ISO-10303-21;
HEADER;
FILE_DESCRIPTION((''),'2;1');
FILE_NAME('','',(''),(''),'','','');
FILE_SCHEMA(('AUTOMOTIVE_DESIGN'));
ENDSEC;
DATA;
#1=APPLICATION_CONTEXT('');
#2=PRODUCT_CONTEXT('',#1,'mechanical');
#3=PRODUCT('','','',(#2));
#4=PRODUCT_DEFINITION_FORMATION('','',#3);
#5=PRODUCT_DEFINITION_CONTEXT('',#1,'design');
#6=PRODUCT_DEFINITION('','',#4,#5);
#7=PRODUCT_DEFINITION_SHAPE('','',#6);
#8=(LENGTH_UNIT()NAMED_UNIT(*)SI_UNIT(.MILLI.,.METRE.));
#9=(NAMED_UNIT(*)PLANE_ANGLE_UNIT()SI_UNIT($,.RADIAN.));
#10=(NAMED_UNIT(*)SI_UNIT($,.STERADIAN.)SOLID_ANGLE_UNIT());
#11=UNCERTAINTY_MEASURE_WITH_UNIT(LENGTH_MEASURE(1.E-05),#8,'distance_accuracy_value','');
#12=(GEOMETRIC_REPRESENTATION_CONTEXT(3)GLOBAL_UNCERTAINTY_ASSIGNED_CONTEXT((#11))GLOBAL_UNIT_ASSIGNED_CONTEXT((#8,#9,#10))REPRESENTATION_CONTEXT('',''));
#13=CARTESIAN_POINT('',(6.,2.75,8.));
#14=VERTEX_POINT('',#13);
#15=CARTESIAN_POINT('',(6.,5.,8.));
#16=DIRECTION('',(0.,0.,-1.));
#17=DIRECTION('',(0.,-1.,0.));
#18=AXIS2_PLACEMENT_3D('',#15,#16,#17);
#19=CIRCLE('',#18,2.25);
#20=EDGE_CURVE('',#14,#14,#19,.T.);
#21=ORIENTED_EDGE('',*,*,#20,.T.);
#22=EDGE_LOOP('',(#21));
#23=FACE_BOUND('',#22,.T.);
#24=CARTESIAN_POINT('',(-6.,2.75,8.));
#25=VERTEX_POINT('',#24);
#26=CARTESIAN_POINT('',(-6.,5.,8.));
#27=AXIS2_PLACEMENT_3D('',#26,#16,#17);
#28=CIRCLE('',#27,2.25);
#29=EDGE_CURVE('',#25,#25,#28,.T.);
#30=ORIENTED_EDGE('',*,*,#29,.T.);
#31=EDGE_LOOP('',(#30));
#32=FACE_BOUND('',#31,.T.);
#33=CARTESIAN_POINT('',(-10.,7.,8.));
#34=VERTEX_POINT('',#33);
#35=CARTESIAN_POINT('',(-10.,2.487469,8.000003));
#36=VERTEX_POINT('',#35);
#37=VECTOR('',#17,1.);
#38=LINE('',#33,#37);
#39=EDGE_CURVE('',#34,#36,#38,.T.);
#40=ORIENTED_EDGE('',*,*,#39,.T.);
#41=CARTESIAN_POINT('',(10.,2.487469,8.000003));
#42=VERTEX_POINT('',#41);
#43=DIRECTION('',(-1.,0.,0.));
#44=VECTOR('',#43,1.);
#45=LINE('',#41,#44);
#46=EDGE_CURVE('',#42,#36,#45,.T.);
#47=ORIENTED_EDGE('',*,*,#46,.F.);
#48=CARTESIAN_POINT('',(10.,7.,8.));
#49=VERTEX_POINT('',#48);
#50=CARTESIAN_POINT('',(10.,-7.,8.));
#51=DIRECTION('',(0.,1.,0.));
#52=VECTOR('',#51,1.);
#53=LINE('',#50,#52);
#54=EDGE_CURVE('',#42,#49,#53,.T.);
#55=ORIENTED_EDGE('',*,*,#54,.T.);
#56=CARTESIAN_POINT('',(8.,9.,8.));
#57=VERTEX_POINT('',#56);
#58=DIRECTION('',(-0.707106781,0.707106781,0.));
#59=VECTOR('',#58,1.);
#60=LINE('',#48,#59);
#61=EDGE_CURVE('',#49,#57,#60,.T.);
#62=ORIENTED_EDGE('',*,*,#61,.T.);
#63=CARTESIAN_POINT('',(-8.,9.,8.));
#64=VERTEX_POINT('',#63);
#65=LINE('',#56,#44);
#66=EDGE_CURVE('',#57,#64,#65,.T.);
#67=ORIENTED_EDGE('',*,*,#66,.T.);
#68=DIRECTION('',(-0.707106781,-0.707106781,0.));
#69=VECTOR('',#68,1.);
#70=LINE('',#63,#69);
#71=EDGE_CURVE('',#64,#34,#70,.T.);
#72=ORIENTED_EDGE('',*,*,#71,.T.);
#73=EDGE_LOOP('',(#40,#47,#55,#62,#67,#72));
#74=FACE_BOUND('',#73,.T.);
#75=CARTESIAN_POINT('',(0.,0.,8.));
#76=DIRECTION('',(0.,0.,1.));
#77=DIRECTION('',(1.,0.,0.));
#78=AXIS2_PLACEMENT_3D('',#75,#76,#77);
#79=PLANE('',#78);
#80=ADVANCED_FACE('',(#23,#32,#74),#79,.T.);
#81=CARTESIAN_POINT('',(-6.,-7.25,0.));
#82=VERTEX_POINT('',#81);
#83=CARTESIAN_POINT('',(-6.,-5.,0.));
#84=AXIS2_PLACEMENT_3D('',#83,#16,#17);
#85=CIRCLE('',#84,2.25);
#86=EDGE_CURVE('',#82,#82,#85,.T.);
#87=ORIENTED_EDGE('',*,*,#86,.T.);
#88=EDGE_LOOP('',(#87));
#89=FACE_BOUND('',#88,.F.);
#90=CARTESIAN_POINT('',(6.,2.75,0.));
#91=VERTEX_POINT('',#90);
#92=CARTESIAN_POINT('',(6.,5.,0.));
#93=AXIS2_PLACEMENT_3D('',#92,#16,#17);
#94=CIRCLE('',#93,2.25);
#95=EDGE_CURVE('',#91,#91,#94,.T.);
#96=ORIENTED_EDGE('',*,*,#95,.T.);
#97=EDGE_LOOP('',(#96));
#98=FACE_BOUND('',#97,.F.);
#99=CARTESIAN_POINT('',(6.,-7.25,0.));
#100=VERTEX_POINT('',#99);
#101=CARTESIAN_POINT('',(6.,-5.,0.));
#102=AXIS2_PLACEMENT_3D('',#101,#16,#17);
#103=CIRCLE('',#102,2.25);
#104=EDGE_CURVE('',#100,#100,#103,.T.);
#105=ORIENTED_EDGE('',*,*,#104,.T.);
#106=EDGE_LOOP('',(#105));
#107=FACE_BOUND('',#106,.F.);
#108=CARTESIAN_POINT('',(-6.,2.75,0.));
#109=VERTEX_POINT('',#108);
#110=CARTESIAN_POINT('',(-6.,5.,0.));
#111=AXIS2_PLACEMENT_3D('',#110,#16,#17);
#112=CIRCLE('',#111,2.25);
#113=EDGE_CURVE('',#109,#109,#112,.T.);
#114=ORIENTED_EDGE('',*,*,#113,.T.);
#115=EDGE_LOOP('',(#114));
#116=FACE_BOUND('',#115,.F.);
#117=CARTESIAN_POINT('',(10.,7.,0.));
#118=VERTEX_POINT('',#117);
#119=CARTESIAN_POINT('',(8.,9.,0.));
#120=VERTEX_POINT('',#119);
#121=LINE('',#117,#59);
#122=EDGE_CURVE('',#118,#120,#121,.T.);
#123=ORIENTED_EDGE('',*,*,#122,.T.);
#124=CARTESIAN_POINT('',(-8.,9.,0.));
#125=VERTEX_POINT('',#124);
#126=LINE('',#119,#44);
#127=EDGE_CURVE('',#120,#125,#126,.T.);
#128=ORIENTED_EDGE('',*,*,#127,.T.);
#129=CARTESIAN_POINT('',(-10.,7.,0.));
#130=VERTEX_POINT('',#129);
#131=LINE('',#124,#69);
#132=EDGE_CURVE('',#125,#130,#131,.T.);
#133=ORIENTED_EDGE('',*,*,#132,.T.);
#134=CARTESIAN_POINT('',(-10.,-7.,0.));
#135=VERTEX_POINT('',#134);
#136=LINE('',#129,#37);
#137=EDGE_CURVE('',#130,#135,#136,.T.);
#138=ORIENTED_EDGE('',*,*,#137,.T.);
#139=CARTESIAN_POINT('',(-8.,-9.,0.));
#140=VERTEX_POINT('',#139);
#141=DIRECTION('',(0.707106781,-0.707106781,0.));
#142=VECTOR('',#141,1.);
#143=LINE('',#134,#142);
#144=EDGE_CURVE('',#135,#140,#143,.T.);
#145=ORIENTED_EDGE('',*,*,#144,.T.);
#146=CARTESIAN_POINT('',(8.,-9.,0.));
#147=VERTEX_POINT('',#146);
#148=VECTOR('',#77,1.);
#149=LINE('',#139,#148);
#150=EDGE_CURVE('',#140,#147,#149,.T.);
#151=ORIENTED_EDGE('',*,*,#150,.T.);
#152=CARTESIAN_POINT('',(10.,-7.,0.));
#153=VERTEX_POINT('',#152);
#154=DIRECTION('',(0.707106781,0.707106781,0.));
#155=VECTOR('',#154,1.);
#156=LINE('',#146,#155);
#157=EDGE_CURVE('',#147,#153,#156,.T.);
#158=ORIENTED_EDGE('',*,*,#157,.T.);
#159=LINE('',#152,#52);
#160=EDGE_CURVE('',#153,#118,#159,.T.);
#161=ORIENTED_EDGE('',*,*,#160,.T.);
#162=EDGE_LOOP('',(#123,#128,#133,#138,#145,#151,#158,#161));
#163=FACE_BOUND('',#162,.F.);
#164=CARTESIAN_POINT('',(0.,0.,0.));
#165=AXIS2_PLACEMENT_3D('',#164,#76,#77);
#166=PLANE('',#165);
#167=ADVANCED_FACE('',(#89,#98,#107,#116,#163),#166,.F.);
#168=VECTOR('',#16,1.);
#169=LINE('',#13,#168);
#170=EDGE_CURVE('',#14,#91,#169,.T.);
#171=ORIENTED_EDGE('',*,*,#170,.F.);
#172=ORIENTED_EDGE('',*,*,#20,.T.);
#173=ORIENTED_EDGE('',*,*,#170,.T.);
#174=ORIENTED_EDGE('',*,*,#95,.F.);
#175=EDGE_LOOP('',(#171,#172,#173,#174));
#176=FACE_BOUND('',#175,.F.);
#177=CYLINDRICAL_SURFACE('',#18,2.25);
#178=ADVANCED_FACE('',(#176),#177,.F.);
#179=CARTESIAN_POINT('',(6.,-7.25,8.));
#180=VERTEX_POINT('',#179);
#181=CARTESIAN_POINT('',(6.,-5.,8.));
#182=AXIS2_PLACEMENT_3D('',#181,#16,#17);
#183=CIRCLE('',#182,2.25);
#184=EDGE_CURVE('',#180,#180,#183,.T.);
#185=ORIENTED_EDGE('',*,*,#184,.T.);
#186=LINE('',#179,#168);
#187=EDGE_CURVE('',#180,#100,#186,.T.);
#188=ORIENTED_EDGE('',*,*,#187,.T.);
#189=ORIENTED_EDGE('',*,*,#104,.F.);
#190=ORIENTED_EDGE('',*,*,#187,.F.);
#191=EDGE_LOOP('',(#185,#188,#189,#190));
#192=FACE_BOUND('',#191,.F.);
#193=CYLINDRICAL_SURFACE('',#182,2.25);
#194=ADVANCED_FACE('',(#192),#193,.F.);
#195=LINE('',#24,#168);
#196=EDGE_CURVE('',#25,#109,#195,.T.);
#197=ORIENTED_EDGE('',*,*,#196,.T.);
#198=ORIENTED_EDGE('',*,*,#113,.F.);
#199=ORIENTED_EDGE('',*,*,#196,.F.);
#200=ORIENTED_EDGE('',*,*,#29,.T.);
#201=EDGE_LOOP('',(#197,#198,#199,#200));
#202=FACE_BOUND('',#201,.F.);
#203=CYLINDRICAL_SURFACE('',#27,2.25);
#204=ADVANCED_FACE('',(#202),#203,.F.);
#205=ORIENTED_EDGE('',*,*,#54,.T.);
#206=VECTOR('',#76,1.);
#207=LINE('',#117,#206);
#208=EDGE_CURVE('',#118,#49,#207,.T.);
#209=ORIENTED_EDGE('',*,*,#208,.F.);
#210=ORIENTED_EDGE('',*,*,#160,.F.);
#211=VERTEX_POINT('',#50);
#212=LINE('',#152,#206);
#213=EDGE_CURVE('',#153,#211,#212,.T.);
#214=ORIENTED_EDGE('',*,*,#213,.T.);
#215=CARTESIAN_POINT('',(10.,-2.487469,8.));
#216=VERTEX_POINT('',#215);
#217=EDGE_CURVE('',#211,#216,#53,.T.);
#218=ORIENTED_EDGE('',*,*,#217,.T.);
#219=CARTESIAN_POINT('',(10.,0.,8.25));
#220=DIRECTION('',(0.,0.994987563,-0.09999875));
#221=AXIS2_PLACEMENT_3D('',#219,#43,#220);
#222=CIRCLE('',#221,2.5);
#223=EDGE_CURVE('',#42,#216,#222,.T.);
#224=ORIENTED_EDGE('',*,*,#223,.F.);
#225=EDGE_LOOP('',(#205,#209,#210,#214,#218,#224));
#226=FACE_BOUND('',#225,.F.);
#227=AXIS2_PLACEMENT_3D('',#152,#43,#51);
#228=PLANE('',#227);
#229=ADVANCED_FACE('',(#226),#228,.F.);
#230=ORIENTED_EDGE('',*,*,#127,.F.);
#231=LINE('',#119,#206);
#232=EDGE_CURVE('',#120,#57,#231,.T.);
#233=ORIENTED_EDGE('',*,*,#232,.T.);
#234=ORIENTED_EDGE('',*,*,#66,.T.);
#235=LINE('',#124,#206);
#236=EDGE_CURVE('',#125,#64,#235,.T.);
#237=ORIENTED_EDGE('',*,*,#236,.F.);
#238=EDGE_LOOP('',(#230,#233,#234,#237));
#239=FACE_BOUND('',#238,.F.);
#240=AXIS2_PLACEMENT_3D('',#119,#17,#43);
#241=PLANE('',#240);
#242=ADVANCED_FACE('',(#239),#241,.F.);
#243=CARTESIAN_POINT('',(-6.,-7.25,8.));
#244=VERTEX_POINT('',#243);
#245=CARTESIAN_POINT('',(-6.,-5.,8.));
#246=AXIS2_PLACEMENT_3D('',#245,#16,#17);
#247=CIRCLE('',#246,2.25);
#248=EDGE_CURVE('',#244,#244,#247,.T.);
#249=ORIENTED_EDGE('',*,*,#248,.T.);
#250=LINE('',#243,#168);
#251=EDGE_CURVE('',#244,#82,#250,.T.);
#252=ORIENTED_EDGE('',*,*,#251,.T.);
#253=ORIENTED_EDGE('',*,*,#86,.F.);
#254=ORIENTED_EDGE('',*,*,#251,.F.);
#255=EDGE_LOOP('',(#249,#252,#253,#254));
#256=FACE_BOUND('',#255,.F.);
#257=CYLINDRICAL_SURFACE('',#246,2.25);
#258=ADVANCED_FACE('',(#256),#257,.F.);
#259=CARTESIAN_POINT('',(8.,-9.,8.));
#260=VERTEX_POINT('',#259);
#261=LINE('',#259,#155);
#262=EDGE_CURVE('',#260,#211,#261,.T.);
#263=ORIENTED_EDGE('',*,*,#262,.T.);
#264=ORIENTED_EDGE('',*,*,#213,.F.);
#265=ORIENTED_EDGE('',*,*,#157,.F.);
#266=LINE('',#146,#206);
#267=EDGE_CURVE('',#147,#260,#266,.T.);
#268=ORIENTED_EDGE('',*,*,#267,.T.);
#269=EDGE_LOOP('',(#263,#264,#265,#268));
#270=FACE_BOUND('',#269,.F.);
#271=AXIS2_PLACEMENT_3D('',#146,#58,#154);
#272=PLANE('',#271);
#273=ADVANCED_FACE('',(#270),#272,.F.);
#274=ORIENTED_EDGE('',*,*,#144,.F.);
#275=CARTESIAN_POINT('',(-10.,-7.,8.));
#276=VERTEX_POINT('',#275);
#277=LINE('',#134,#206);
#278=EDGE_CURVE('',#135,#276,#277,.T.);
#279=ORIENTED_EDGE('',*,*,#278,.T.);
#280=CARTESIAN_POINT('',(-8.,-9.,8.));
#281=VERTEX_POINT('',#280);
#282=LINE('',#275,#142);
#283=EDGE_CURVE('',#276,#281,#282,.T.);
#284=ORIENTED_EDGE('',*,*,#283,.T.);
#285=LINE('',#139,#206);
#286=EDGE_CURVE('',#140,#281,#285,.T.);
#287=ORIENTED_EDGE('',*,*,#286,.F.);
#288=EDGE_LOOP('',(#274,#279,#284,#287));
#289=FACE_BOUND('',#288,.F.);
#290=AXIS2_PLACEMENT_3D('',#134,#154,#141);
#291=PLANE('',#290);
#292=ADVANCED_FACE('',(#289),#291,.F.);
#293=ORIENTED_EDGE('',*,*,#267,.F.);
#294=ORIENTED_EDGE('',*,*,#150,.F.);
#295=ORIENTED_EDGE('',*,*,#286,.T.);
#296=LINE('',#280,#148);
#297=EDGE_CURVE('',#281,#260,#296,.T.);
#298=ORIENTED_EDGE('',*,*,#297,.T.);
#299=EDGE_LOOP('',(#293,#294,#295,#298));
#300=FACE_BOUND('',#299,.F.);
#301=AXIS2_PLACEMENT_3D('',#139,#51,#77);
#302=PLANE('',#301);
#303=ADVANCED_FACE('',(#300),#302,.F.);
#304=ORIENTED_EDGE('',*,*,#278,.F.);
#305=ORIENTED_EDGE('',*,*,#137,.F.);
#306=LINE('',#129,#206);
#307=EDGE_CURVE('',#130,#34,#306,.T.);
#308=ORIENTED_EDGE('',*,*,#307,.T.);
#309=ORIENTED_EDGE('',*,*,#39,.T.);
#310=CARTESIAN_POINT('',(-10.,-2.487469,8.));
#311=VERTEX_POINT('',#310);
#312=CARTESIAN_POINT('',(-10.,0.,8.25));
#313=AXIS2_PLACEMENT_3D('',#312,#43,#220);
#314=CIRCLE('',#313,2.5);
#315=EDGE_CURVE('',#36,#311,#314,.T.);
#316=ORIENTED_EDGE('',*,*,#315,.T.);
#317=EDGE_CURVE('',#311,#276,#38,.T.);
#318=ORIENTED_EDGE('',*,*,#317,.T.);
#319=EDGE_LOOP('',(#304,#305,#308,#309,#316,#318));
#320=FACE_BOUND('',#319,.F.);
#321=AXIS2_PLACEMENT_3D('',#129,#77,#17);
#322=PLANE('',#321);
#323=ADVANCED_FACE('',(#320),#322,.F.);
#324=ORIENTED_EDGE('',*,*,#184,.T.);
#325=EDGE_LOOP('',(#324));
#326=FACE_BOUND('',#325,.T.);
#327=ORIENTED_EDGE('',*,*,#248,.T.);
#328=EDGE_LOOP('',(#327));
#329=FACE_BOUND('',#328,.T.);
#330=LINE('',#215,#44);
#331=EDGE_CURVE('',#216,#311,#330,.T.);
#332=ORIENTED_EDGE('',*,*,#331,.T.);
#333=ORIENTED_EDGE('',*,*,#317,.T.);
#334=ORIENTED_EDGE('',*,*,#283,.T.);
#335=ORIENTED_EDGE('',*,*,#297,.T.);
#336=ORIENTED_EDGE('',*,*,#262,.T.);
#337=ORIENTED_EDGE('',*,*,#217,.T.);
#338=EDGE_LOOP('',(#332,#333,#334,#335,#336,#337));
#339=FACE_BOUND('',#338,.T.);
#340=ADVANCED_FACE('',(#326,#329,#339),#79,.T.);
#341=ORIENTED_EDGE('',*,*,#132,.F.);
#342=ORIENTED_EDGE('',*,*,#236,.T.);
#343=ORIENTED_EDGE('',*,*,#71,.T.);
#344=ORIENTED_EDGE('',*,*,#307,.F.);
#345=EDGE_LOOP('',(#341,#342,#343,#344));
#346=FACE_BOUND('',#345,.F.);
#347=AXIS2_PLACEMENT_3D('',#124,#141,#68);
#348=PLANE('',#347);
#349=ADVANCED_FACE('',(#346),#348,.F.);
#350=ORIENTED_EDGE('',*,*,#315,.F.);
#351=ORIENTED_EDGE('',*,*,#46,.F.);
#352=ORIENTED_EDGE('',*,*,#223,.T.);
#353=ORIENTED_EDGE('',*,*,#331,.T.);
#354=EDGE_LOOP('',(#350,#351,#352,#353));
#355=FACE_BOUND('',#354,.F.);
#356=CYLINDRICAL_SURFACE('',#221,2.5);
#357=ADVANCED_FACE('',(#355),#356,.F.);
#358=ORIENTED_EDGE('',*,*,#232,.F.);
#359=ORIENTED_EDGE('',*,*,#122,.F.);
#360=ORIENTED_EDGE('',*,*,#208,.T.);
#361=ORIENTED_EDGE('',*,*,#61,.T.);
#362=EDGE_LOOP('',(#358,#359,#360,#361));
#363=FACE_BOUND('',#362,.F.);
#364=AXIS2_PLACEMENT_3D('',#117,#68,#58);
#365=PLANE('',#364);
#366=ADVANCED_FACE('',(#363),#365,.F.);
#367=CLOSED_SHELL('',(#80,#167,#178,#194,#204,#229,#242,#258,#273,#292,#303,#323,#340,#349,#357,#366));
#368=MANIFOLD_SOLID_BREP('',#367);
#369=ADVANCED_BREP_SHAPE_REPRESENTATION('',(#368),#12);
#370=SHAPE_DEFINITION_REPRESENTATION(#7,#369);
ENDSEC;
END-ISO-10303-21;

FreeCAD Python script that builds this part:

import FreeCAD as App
import Part
import Sketcher
from FreeCAD import Vector
Q = App.Units.Quantity

doc = App.newDocument("Part")
body = doc.addObject("PartDesign::Body", "Body")

# Sketch on XY plane
sketch1 = body.newObject("Sketcher::SketchObject", "Sketch")
sketch1.AttachmentSupport = (doc.getObject("XY_Plane"), [""])
sketch1.MapMode = "FlatFace"
sketch1.addGeometry(Part.LineSegment(Vector(-8, -9, 0), Vector(8, -9, 0)), False)
sketch1.addGeometry(Part.LineSegment(Vector(8, -9, 0), Vector(10, -7, 0)), False)
sketch1.addGeometry(Part.LineSegment(Vector(10, -7, 0), Vector(10, 7, 0)), False)
sketch1.addGeometry(Part.LineSegment(Vector(10, 7, 0), Vector(8, 9, 0)), False)
sketch1.addGeometry(Part.LineSegment(Vector(8, 9, 0), Vector(-8, 9, 0)), False)
sketch1.addGeometry(Part.LineSegment(Vector(-8, 9, 0), Vector(-10, 7, 0)), False)
sketch1.addGeometry(Part.LineSegment(Vector(-10, 7, 0), Vector(-10, -7, 0)), False)
sketch1.addGeometry(Part.LineSegment(Vector(-10, -7, 0), Vector(-8, -9, 0)), False)
sketch1.addConstraint(Sketcher.Constraint("Coincident", 0, 2, 1, 1))
sketch1.addConstraint(Sketcher.Constraint("Coincident", 1, 2, 2, 1))
sketch1.addConstraint(Sketcher.Constraint("Coincident", 2, 2, 3, 1))
sketch1.addConstraint(Sketcher.Constraint("Coincident", 3, 2, 4, 1))
sketch1.addConstraint(Sketcher.Constraint("Coincident", 4, 2, 5, 1))
sketch1.addConstraint(Sketcher.Constraint("Coincident", 5, 2, 6, 1))
sketch1.addConstraint(Sketcher.Constraint("Coincident", 6, 2, 7, 1))
sketch1.addConstraint(Sketcher.Constraint("Coincident", 7, 2, 0, 1))
sketch1.addConstraint(Sketcher.Constraint("Horizontal", 0))
sketch1.addConstraint(Sketcher.Constraint("Vertical", 2))
sketch1.addConstraint(Sketcher.Constraint("Horizontal", 4))
sketch1.addConstraint(Sketcher.Constraint("Vertical", 6))
sketch1.addConstraint(Sketcher.Constraint("Symmetric", 0, 2, 4, 2, -1, 1))
sketch1.addConstraint(Sketcher.Constraint("Symmetric", 1, 2, 5, 2, -1, 1))
sketch1.addConstraint(Sketcher.Constraint("Perpendicular", 1, 3))
sketch1.addConstraint(Sketcher.Constraint("Perpendicular", 5, 7))
sketch1.addConstraint(Sketcher.Constraint("Horizontal", 2, 2, 5, 2))
sketch1.addConstraint(Sketcher.Constraint("Horizontal", 1, 2, 6, 2))
sketch1.addConstraint(Sketcher.Constraint("Vertical", 0, 2, 3, 2))
sketch1.addConstraint(Sketcher.Constraint("DistanceX", 0, 1, 0, 2, Q("16 mm")))
sketch1.addConstraint(Sketcher.Constraint("DistanceY", 2, 1, 2, 2, Q("14 mm")))
sketch1.addConstraint(Sketcher.Constraint("DistanceY", 0, 2, -1, 1, Q("9 mm")))
pad1 = body.newObject("PartDesign::Pad", "Pad")
pad1.Profile = sketch1
pad1.Length = 8

# Sketch on an angled plane
sketch2 = body.newObject("Sketcher::SketchObject", "Sketch001")
sketch2.Placement = App.Placement(Vector(-10.001, 0, 8.25), App.Rotation(Vector(1, 0, 0), Vector(0, 0.994987563, -0.09999875), Vector(0, 0.09999875, 0.994987563), "ZXY"))
sketch2.addGeometry(Part.LineSegment(Vector(20.001, 0, 0), Vector(20.001, 2.5, 0)), False)
sketch2.addGeometry(Part.LineSegment(Vector(20.001, 2.5, 0), Vector(0.001, 2.5, 0)), False)
sketch2.addGeometry(Part.LineSegment(Vector(0.001, 2.5, 0), Vector(0.001, 0, 0)), False)
sketch2.addGeometry(Part.LineSegment(Vector(0.001, 0, 0), Vector(20.001, 0, 0)), False)
sketch2.addConstraint(Sketcher.Constraint("Coincident", 0, 2, 1, 1))
sketch2.addConstraint(Sketcher.Constraint("Coincident", 1, 2, 2, 1))
sketch2.addConstraint(Sketcher.Constraint("Coincident", 2, 2, 3, 1))
sketch2.addConstraint(Sketcher.Constraint("Coincident", 3, 2, 0, 1))
sketch2.addConstraint(Sketcher.Constraint("Vertical", 0))
sketch2.addConstraint(Sketcher.Constraint("Horizontal", 1))
sketch2.addConstraint(Sketcher.Constraint("Vertical", 2))
sketch2.addConstraint(Sketcher.Constraint("Horizontal", 3))
sketch2.addConstraint(Sketcher.Constraint("PointOnObject", 2, 2, -1))
sketch2.addConstraint(Sketcher.Constraint("DistanceX", 1, 2, 1, 1, Q("20 mm")))
sketch2.addConstraint(Sketcher.Constraint("DistanceY", 0, 1, 0, 2, Q("2.5 mm")))
sketch2.addConstraint(Sketcher.Constraint("DistanceX", -1, 1, 0, 2, Q("20.001 mm")))
groove = body.newObject("PartDesign::Groove", "Groove")
groove.Profile = sketch2
groove.ReferenceAxis = (sketch2, ["H_Axis"])
groove.Angle = 168.522
groove.Reversed = True

# Sketch on XY plane
sketch3 = body.newObject("Sketcher::SketchObject", "Sketch002")
sketch3.AttachmentSupport = (doc.getObject("XY_Plane"), [""])
sketch3.MapMode = "FlatFace"
sketch3.AttachmentOffset = App.Placement(Vector(0, 0, 8), App.Rotation())
sketch3.addGeometry(Part.Circle(Vector(6, -5, 0), Vector(0, 0, 1), 2.25), False)
sketch3.addConstraint(Sketcher.Constraint("Diameter", 0, Q("4.5 mm")))
sketch3.addConstraint(Sketcher.Constraint("DistanceX", -1, 1, 0, 3, Q("6 mm")))
sketch3.addConstraint(Sketcher.Constraint("DistanceY", 0, 3, -1, 1, Q("5 mm")))
doc.recompute()
hole = body.newObject("PartDesign::Hole", "Hole")
hole.Profile = sketch3
hole.ThreadType = "None"
hole.Diameter = 4.5
hole.DepthType = "Dimension"
hole.Depth = 8
hole.DrillPoint = "Flat"

# Sketch on XY plane
sketch4 = body.newObject("Sketcher::SketchObject", "Sketch003")
sketch4.AttachmentSupport = (doc.getObject("XY_Plane"), [""])
sketch4.MapMode = "FlatFace"
sketch4.AttachmentOffset = App.Placement(Vector(0, 0, 8), App.Rotation())
sketch4.addGeometry(Part.Circle(Vector(-6, -5, 0), Vector(0, 0, 1), 2.25), False)
sketch4.addConstraint(Sketcher.Constraint("Diameter", 0, Q("4.5 mm")))
sketch4.addConstraint(Sketcher.Constraint("DistanceX", 0, 3, -1, 1, Q("6 mm")))
sketch4.addConstraint(Sketcher.Constraint("DistanceY", 0, 3, -1, 1, Q("5 mm")))
doc.recompute()
hole2 = body.newObject("PartDesign::Hole", "Hole001")
hole2.Profile = sketch4
hole2.ThreadType = "None"
hole2.Diameter = 4.5
hole2.DepthType = "Dimension"
hole2.Depth = 8
hole2.DrillPoint = "Flat"

# Sketch on XY plane
sketch5 = body.newObject("Sketcher::SketchObject", "Sketch004")
sketch5.AttachmentSupport = (doc.getObject("XY_Plane"), [""])
sketch5.MapMode = "FlatFace"
sketch5.AttachmentOffset = App.Placement(Vector(0, 0, 8), App.Rotation())
sketch5.addGeometry(Part.Circle(Vector(6, 5, 0), Vector(0, 0, 1), 2.25), False)
sketch5.addConstraint(Sketcher.Constraint("Diameter", 0, Q("4.5 mm")))
sketch5.addConstraint(Sketcher.Constraint("DistanceX", -1, 1, 0, 3, Q("6 mm")))
sketch5.addConstraint(Sketcher.Constraint("DistanceY", -1, 1, 0, 3, Q("5 mm")))
doc.recompute()
hole3 = body.newObject("PartDesign::Hole", "Hole002")
hole3.Profile = sketch5
hole3.ThreadType = "None"
hole3.Diameter = 4.5
hole3.DepthType = "Dimension"
hole3.Depth = 8
hole3.DrillPoint = "Flat"

# Sketch on XY plane
sketch6 = body.newObject("Sketcher::SketchObject", "Sketch005")
sketch6.AttachmentSupport = (doc.getObject("XY_Plane"), [""])
sketch6.MapMode = "FlatFace"
sketch6.AttachmentOffset = App.Placement(Vector(0, 0, 8), App.Rotation())
sketch6.addGeometry(Part.Circle(Vector(-6, 5, 0), Vector(0, 0, 1), 2.25), False)
sketch6.addConstraint(Sketcher.Constraint("Diameter", 0, Q("4.5 mm")))
sketch6.addConstraint(Sketcher.Constraint("DistanceX", 0, 3, -1, 1, Q("6 mm")))
sketch6.addConstraint(Sketcher.Constraint("DistanceY", -1, 1, 0, 3, Q("5 mm")))
doc.recompute()
hole4 = body.newObject("PartDesign::Hole", "Hole003")
hole4.Profile = sketch6
hole4.ThreadType = "None"
hole4.Diameter = 4.5
hole4.DepthType = "Dimension"
hole4.Depth = 8
hole4.DrillPoint = "Flat"

doc.recompute()
